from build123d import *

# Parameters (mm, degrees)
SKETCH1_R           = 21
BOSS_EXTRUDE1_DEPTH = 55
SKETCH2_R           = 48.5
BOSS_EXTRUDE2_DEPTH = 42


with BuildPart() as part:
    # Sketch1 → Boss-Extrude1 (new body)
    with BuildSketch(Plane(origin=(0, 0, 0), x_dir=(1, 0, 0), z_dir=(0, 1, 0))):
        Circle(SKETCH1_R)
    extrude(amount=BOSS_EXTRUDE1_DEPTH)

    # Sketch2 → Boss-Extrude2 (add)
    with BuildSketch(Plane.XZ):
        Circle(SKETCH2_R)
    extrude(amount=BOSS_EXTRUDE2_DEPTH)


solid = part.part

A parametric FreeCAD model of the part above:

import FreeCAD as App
import Part
import Sketcher

doc = App.newDocument("Part")
params = doc.addObject("Spreadsheet::Sheet", "Params")
for row, (alias, value) in enumerate([
    ("sketch1_diameter", "42 mm"),
    ("pad1_length", "55 mm"),
    ("sketch2_diameter", "97 mm"),
    ("pad2_length", "42 mm"),
], start=1):
    params.set(f"A{row}", alias)
    params.set(f"B{row}", "=" + value)
    params.setAlias(f"B{row}", alias)

body = doc.addObject("PartDesign::Body", "Body")

# Sketch on XZ plane
sketch1 = doc.addObject("Sketcher::SketchObject", "Sketch")
body.addObject(sketch1)
sketch1.AttachmentSupport = (doc.XZ_Plane, [""])
sketch1.MapMode = "FlatFace"
sketch1.addGeometry(Part.Circle(App.Vector(0, 0, 0), App.Vector(0, 0, 1), 21), False)
sketch1.addConstraint([
    Sketcher.Constraint("Coincident", 0, 3, -1, 1),
    Sketcher.Constraint("Diameter", 0, 42.0),
])
sketch1.setExpression("Constraints[1]", "Params.sketch1_diameter")
pad1 = doc.addObject("PartDesign::Pad", "Pad")
body.addObject(pad1)
pad1.Profile = sketch1
pad1.setExpression("Length", "Params.pad1_length")
pad1.Reversed = True

# Sketch on XZ plane
sketch2 = doc.addObject("Sketcher::SketchObject", "Sketch001")
body.addObject(sketch2)
sketch2.AttachmentSupport = (doc.XZ_Plane, [""])
sketch2.MapMode = "FlatFace"
sketch2.addGeometry(Part.Circle(App.Vector(0, 0, 0), App.Vector(0, 0, 1), 48.5), False)
sketch2.addConstraint([
    Sketcher.Constraint("Coincident", 0, 3, -1, 1),
    Sketcher.Constraint("Diameter", 0, 97.0),
])
sketch2.setExpression("Constraints[1]", "Params.sketch2_diameter")
pad2 = doc.addObject("PartDesign::Pad", "Pad001")
body.addObject(pad2)
pad2.Profile = sketch2
pad2.setExpression("Length", "Params.pad2_length")

doc.recompute()
